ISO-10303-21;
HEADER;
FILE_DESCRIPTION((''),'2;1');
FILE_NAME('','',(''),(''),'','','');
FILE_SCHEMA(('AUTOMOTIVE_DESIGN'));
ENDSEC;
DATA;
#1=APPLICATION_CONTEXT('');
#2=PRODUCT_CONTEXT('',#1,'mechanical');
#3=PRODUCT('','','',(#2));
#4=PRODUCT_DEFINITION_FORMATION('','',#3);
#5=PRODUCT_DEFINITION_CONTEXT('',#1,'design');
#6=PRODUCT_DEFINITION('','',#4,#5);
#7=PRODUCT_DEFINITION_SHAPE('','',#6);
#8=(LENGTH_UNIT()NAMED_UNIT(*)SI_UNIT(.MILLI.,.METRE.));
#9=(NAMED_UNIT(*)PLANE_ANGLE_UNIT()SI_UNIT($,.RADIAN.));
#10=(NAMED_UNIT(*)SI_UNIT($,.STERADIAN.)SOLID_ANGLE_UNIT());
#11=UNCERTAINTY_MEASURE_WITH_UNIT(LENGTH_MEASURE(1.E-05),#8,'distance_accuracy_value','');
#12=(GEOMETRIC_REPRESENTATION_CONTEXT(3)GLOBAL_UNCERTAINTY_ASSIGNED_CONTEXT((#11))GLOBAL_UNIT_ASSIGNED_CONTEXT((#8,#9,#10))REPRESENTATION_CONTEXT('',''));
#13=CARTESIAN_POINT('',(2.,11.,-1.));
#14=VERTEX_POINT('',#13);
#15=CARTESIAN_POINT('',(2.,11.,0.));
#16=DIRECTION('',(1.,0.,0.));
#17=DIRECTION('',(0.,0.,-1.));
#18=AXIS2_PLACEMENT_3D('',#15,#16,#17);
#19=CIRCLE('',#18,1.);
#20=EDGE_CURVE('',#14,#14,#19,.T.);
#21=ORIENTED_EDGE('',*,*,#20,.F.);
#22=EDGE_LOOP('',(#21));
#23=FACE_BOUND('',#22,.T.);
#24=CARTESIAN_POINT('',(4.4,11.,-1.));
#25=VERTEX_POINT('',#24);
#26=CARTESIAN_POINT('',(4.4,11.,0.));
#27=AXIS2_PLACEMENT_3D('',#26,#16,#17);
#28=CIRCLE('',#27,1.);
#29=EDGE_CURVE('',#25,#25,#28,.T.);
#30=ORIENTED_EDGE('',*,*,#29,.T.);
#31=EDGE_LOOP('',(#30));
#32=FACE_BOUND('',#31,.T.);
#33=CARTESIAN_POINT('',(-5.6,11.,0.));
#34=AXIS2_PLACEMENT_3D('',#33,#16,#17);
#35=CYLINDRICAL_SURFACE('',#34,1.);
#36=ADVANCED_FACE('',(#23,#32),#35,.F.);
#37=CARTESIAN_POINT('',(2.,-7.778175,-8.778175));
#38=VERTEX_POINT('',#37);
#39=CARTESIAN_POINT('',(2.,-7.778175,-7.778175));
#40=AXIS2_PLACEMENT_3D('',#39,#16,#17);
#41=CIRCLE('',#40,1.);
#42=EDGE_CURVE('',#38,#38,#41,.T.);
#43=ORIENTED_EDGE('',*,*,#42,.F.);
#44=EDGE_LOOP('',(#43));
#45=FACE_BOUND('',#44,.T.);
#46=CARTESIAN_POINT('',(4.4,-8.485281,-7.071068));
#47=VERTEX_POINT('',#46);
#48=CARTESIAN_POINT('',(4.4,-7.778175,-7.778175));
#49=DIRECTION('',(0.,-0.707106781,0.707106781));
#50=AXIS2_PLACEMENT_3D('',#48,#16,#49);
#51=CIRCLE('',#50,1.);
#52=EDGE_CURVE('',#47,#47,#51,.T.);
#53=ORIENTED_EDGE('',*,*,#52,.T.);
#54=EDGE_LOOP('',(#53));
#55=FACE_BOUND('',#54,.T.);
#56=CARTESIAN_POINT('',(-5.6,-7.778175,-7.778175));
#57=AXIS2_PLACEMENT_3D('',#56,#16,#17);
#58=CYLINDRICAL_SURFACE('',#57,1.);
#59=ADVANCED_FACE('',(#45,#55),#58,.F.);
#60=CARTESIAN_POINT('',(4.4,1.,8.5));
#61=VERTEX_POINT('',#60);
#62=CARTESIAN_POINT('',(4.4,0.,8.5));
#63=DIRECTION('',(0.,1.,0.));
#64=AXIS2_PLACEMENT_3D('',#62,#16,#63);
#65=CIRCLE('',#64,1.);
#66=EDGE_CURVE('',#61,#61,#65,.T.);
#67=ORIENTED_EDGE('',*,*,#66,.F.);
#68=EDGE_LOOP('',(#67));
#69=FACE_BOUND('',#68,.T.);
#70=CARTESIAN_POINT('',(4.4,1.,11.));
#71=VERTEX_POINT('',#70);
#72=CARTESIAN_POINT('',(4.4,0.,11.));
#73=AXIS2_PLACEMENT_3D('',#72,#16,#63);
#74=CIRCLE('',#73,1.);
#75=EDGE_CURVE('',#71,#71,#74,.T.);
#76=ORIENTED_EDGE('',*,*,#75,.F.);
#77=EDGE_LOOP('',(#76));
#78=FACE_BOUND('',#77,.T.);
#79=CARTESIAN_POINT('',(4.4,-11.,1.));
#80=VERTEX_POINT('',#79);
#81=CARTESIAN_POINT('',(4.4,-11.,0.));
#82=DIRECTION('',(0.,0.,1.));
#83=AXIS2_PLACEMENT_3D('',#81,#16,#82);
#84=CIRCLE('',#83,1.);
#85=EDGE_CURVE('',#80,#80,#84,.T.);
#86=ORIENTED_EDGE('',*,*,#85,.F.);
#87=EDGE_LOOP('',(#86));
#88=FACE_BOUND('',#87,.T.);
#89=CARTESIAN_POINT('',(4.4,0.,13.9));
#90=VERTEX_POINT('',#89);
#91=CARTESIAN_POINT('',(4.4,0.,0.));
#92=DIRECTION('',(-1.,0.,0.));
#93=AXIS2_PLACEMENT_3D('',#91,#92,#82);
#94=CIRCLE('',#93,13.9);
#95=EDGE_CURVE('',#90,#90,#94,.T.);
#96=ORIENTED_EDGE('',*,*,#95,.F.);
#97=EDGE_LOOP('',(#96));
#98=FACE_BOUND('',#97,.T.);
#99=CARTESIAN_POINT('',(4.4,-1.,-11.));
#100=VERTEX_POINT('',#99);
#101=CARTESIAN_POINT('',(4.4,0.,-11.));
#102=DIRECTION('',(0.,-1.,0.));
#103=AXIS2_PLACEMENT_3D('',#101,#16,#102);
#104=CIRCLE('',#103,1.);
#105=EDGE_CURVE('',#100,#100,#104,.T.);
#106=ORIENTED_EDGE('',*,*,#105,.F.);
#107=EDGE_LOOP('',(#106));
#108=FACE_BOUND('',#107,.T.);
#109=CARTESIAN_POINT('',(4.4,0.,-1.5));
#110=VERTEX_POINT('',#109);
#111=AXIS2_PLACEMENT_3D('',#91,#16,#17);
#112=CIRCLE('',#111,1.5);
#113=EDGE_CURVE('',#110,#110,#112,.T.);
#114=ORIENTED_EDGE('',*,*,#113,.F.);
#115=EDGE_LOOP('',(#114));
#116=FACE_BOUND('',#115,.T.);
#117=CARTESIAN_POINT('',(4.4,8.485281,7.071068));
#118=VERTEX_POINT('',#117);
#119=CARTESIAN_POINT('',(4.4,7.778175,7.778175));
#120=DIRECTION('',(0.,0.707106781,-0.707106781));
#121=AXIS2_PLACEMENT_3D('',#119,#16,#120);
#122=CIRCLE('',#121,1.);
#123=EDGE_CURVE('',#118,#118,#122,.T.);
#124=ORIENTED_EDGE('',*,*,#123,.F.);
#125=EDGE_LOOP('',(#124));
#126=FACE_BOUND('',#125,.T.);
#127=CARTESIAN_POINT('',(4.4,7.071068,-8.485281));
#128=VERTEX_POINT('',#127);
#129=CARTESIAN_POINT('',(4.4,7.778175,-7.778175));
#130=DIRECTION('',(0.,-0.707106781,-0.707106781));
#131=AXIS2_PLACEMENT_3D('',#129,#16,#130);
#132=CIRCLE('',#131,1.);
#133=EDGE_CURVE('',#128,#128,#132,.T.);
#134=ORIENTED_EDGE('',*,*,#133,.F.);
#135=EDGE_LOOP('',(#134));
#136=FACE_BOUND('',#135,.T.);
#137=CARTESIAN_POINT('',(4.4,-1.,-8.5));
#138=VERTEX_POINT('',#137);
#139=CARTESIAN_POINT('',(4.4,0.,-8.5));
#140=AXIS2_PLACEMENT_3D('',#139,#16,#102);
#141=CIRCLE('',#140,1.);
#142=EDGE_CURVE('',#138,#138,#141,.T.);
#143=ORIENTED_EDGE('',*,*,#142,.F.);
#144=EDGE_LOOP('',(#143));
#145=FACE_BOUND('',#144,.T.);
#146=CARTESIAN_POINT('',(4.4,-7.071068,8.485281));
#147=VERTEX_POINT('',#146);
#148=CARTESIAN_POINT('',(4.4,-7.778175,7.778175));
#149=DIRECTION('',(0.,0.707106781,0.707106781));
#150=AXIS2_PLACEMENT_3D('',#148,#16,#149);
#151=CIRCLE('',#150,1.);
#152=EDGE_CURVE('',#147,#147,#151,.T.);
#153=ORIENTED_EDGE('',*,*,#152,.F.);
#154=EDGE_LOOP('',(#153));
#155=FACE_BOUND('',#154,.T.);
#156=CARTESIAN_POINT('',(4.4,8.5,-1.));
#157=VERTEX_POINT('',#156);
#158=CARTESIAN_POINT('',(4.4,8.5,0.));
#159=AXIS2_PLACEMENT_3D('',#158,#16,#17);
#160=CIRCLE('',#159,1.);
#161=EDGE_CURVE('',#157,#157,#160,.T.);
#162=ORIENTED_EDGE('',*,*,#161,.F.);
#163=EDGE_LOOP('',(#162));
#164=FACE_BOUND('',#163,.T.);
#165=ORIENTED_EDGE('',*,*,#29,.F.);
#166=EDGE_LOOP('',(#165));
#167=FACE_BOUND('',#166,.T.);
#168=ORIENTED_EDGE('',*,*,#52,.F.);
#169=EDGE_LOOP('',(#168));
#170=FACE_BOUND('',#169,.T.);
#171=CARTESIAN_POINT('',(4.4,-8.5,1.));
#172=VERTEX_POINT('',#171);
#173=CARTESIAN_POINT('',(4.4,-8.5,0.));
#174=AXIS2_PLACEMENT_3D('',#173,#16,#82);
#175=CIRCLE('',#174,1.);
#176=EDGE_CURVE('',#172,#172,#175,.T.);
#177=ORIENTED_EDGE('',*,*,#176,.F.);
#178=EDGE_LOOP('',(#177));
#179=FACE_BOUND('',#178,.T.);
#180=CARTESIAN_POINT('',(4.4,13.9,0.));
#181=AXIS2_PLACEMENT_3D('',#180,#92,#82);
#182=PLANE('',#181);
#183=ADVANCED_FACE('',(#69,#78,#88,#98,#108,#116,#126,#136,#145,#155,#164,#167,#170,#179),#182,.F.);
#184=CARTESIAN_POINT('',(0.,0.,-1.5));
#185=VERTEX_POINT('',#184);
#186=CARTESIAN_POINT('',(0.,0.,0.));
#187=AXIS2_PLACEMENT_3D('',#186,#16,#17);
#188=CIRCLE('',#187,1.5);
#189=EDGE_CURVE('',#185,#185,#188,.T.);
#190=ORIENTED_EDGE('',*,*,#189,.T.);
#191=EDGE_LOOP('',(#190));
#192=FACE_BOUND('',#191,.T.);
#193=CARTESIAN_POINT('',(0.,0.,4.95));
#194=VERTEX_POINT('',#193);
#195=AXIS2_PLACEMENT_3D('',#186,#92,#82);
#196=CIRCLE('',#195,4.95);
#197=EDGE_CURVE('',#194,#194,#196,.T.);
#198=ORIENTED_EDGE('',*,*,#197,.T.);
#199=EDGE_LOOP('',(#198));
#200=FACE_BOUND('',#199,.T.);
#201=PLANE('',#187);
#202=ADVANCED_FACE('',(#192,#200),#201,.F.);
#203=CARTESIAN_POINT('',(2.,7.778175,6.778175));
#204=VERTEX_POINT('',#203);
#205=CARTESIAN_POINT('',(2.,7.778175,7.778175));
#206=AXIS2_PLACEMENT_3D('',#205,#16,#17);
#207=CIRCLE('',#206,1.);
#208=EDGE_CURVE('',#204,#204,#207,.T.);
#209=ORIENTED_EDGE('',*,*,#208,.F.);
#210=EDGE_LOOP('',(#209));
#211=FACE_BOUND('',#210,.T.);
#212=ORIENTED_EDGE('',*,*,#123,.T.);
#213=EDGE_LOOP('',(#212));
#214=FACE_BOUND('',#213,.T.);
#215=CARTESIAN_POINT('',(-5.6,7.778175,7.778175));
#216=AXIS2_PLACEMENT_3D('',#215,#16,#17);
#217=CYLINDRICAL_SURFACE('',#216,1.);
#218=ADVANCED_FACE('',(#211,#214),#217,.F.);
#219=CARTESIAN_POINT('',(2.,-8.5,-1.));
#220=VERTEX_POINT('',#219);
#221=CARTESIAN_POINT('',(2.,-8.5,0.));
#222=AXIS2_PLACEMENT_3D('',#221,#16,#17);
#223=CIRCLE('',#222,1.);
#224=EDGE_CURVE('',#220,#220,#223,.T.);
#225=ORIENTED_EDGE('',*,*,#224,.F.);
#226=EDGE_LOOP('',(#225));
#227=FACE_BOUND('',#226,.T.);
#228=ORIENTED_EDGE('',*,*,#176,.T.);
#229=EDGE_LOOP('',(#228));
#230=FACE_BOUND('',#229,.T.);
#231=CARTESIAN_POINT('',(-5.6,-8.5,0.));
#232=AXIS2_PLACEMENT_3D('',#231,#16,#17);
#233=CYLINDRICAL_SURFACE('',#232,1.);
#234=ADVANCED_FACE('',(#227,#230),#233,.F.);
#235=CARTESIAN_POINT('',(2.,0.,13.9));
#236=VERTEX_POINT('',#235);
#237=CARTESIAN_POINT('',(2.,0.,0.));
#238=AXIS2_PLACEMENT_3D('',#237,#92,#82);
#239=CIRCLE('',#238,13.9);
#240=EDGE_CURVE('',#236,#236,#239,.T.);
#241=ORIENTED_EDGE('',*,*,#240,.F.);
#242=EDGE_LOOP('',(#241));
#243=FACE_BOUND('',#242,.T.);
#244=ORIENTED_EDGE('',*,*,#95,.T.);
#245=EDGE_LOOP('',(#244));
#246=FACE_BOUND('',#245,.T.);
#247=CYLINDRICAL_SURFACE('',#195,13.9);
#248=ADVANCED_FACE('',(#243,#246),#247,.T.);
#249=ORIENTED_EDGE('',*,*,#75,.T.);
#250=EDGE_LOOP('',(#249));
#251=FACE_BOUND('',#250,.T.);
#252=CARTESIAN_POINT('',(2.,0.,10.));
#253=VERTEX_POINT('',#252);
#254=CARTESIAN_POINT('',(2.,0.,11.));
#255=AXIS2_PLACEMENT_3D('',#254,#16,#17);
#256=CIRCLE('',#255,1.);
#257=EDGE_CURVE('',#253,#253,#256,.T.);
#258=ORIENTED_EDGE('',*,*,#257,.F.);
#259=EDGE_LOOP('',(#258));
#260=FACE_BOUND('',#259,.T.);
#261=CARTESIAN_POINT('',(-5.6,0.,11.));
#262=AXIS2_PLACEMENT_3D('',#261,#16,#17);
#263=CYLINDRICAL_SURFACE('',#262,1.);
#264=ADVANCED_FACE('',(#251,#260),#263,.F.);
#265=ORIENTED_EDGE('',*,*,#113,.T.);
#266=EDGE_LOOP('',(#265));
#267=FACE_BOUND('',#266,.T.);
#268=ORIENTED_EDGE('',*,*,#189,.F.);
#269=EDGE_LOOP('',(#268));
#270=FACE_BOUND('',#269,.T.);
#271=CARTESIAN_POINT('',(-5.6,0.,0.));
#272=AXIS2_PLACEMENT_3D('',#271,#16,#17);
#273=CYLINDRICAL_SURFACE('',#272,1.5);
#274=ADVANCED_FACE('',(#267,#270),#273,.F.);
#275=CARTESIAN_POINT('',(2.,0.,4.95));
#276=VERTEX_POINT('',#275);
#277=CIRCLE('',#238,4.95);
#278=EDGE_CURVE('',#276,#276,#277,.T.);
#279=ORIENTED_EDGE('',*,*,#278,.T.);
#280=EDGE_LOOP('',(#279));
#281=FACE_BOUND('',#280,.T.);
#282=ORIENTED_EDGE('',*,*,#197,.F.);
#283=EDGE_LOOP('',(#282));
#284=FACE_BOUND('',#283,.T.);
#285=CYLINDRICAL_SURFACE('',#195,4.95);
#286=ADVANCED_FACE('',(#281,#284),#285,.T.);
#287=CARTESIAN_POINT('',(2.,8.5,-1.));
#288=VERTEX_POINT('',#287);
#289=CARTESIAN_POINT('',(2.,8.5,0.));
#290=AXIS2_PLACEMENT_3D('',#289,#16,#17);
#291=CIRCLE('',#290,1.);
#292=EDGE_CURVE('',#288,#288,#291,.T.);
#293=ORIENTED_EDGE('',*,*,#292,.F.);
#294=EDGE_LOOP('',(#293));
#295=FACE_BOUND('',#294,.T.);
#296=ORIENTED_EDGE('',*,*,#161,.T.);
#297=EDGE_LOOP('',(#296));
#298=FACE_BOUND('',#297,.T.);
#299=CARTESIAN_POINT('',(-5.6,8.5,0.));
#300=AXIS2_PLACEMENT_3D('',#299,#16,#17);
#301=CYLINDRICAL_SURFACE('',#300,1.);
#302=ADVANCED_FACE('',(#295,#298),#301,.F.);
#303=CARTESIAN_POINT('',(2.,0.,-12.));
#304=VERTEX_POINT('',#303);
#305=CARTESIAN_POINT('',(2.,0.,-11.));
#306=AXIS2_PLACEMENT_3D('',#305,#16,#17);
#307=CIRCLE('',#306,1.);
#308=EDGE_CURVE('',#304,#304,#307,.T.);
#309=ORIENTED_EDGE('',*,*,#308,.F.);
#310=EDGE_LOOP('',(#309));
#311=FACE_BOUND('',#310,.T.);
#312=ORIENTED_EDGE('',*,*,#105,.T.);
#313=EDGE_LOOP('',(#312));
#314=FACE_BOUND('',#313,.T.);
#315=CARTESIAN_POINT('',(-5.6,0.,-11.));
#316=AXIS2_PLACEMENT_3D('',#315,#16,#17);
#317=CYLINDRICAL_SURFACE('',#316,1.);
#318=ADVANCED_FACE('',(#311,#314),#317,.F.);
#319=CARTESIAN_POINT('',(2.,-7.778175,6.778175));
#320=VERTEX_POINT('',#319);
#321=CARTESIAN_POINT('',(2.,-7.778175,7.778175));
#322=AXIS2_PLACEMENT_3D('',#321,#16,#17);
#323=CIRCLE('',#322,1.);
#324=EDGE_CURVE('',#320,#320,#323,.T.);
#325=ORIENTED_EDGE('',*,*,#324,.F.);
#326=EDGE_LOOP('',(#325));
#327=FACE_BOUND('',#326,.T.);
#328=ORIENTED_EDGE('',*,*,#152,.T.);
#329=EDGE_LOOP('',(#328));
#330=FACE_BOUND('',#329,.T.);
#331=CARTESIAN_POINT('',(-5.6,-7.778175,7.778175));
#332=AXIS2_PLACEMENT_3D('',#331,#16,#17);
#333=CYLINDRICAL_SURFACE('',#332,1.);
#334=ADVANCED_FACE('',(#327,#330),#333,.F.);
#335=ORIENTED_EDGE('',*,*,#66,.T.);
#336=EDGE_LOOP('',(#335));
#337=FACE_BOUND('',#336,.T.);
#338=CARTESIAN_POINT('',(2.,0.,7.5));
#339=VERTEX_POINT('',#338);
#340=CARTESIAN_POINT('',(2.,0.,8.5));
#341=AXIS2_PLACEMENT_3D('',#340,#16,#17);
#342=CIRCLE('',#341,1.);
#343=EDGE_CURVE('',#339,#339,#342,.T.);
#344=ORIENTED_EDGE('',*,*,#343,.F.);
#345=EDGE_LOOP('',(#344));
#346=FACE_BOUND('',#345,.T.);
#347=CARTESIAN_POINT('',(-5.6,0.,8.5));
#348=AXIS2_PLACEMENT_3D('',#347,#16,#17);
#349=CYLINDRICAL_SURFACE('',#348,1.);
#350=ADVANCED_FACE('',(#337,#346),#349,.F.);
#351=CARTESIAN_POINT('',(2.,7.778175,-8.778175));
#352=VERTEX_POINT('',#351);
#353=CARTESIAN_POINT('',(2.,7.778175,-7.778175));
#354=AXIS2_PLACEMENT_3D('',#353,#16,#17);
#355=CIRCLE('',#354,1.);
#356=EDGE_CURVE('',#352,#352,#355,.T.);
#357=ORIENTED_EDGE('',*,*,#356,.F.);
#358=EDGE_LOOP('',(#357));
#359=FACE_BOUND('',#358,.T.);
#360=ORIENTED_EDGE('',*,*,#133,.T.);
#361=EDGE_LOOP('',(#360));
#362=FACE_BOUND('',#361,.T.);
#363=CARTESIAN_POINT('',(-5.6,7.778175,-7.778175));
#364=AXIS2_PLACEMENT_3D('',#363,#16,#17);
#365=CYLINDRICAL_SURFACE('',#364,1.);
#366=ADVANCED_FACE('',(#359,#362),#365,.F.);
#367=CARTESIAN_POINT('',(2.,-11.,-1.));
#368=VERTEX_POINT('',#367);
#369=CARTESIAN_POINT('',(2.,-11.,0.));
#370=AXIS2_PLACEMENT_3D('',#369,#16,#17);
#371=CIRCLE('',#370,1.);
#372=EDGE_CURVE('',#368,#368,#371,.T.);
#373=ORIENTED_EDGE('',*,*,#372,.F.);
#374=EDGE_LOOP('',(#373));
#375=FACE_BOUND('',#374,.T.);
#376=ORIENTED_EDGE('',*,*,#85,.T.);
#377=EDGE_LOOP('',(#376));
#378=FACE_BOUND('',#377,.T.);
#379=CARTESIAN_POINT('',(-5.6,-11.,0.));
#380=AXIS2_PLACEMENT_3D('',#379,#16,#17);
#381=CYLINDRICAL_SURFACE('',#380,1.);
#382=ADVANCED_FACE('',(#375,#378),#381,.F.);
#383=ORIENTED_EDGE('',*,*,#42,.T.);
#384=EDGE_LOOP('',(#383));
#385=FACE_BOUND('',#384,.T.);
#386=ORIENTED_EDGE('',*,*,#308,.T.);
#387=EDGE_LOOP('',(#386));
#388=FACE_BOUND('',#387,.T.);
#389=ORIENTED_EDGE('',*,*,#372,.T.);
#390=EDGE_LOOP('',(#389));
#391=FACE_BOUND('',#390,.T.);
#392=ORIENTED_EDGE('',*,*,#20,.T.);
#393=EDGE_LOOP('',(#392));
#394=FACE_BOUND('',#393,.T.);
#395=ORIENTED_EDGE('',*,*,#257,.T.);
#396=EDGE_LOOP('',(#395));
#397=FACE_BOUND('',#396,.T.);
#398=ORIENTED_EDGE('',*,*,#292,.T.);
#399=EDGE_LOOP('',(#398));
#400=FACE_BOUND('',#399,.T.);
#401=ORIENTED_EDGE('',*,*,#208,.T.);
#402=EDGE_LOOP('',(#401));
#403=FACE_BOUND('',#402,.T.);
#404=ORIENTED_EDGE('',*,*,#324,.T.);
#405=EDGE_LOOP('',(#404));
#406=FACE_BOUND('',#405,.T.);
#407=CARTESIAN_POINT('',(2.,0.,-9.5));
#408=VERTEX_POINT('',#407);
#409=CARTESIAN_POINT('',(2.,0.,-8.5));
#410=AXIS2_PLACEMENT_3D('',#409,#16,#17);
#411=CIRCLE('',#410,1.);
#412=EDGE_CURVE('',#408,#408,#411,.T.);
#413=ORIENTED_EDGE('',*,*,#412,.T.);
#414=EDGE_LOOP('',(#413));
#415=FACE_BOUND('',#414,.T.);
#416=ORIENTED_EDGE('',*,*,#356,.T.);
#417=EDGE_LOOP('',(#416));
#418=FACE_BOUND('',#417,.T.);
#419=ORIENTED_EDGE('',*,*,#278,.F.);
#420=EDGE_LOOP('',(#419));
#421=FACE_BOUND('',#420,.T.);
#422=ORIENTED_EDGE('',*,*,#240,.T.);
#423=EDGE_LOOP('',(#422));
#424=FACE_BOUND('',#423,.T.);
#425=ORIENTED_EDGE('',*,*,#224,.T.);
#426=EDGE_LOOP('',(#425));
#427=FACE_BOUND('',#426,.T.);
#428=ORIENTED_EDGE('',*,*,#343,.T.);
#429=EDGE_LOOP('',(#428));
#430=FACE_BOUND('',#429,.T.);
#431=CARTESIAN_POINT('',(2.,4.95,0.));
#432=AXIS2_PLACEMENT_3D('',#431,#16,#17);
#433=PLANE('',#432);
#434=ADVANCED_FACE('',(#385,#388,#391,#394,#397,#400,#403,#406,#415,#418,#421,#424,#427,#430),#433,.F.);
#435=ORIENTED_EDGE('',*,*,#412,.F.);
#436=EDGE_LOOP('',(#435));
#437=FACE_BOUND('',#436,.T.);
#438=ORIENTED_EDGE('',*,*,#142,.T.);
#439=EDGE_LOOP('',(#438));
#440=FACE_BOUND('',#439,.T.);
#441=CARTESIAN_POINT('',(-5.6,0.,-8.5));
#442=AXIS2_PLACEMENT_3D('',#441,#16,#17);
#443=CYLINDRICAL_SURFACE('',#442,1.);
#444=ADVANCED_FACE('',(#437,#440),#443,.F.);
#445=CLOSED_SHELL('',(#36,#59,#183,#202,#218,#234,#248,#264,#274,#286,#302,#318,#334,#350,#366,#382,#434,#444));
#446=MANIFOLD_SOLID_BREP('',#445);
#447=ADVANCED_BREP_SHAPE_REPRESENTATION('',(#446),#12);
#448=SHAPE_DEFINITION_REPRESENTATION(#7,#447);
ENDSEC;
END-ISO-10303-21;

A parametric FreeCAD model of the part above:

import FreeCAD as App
import Part
import Sketcher
from FreeCAD import Vector


def add_polygon(sketch, points):
    """Adds a closed chain of lines whose ends are joined by coincident constraints."""
    first, n = sketch.GeometryCount, len(points)
    for a, b in zip(points, points[1:] + points[:1]):
        sketch.addGeometry(Part.LineSegment(App.Vector(*a, 0), App.Vector(*b, 0)), False)
    for i in range(n):
        sketch.addConstraint(Sketcher.Constraint("Coincident", first + i, 2, first + (i + 1) % n, 1))

doc = App.newDocument("Part")
body = doc.addObject("PartDesign::Body", "Body")

# Sketch on XY plane
sketch1 = body.newObject("Sketcher::SketchObject", "Sketch")
sketch1.AttachmentSupport = (doc.getObject("XY_Plane"), [""])
sketch1.MapMode = "FlatFace"
add_polygon(sketch1, [(0, 5), (0, 0), (4.4, 0), (4.4, 13.9), (2, 13.9), (2, 5)])  # lines 0-5
sketch1.addConstraint([
    Sketcher.Constraint("Vertical", 0),
    Sketcher.Constraint("Horizontal", 1),
    Sketcher.Constraint("Vertical", 2),
    Sketcher.Constraint("Horizontal", 3),
    Sketcher.Constraint("Vertical", 4),
    Sketcher.Constraint("Horizontal", 5),
    Sketcher.Constraint("Coincident", 0, 2, -1, 1),
    Sketcher.Constraint("DistanceX", 5, 2, 5, 1, 2.0),
    Sketcher.Constraint("DistanceX", 1, 1, 1, 2, 4.4),
    Sketcher.Constraint("DistanceY", 2, 1, 2, 2, 13.9),
    Sketcher.Constraint("DistanceY", 0, 2, 0, 1, 4.95),
])
revolution = body.newObject("PartDesign::Revolution", "Revolution")
revolution.Profile = sketch1
revolution.ReferenceAxis = (sketch1, ["H_Axis"])
revolution.Angle = 360

# Sketch on YZ plane
sketch2 = body.newObject("Sketcher::SketchObject", "Sketch001")
sketch2.AttachmentSupport = (doc.getObject("YZ_Plane"), [""])
sketch2.MapMode = "FlatFace"
sketch2.AttachmentOffset = App.Placement(Vector(0, 0, 4.4), App.Rotation())
sketch2.addGeometry(Part.Circle(Vector(11, 0, 0), Vector(0, 0, 1), 1), False)
sketch2.addConstraint([
    Sketcher.Constraint("PointOnObject", 0, 3, -1),
    Sketcher.Constraint("Diameter", 0, 2.0),
    Sketcher.Constraint("DistanceX", -1, 1, 0, 3, 11.0),
])
pocket1 = body.newObject("PartDesign::Pocket", "Pocket")
pocket1.Profile = sketch2
pocket1.Length = 10

# Sketch on YZ plane
sketch3 = body.newObject("Sketcher::SketchObject", "Sketch002")
sketch3.AttachmentSupport = (doc.getObject("YZ_Plane"), [""])
sketch3.MapMode = "FlatFace"
sketch3.AttachmentOffset = App.Placement(Vector(0, 0, 4.4), App.Rotation())
sketch3.addGeometry(Part.Circle(Vector(8.5, 0, 0), Vector(0, 0, 1), 1), False)
sketch3.addConstraint([
    Sketcher.Constraint("PointOnObject", 0, 3, -1),
    Sketcher.Constraint("Diameter", 0, 2.0),
    Sketcher.Constraint("DistanceX", -1, 1, 0, 3, 8.5),
])
pocket2 = body.newObject("PartDesign::Pocket", "Pocket001")
pocket2.Profile = sketch3
pocket2.Length = 10
doc.recompute()

polarpattern = body.newObject("PartDesign::PolarPattern", "PolarPattern")
polarpattern.Originals = [pocket1]
polarpattern.Axis = (doc.getObject("X_Axis"), [""])
polarpattern.Angle = 360
polarpattern.Occurrences = 8
body.Tip = polarpattern
doc.recompute()

polarpattern2 = body.newObject("PartDesign::PolarPattern", "PolarPattern001")
polarpattern2.Originals = [pocket2]
polarpattern2.Axis = (doc.getObject("X_Axis"), [""])
polarpattern2.Angle = 360
polarpattern2.Occurrences = 4
body.Tip = polarpattern2

# Sketch on YZ plane
sketch4 = body.newObject("Sketcher::SketchObject", "Sketch003")
sketch4.AttachmentSupport = (doc.getObject("YZ_Plane"), [""])
sketch4.MapMode = "FlatFace"
sketch4.AttachmentOffset = App.Placement(Vector(0, 0, 4.4), App.Rotation())
sketch4.addGeometry(Part.Circle(Vector(0, 0, 0), Vector(0, 0, 1), 1.5), False)
sketch4.addConstraint([
    Sketcher.Constraint("Coincident", 0, 3, -1, 1),
    Sketcher.Constraint("Diameter", 0, 3.0),
])
pocket3 = body.newObject("PartDesign::Pocket", "Pocket002")
pocket3.Profile = sketch4
pocket3.Length = 10

doc.recompute()
